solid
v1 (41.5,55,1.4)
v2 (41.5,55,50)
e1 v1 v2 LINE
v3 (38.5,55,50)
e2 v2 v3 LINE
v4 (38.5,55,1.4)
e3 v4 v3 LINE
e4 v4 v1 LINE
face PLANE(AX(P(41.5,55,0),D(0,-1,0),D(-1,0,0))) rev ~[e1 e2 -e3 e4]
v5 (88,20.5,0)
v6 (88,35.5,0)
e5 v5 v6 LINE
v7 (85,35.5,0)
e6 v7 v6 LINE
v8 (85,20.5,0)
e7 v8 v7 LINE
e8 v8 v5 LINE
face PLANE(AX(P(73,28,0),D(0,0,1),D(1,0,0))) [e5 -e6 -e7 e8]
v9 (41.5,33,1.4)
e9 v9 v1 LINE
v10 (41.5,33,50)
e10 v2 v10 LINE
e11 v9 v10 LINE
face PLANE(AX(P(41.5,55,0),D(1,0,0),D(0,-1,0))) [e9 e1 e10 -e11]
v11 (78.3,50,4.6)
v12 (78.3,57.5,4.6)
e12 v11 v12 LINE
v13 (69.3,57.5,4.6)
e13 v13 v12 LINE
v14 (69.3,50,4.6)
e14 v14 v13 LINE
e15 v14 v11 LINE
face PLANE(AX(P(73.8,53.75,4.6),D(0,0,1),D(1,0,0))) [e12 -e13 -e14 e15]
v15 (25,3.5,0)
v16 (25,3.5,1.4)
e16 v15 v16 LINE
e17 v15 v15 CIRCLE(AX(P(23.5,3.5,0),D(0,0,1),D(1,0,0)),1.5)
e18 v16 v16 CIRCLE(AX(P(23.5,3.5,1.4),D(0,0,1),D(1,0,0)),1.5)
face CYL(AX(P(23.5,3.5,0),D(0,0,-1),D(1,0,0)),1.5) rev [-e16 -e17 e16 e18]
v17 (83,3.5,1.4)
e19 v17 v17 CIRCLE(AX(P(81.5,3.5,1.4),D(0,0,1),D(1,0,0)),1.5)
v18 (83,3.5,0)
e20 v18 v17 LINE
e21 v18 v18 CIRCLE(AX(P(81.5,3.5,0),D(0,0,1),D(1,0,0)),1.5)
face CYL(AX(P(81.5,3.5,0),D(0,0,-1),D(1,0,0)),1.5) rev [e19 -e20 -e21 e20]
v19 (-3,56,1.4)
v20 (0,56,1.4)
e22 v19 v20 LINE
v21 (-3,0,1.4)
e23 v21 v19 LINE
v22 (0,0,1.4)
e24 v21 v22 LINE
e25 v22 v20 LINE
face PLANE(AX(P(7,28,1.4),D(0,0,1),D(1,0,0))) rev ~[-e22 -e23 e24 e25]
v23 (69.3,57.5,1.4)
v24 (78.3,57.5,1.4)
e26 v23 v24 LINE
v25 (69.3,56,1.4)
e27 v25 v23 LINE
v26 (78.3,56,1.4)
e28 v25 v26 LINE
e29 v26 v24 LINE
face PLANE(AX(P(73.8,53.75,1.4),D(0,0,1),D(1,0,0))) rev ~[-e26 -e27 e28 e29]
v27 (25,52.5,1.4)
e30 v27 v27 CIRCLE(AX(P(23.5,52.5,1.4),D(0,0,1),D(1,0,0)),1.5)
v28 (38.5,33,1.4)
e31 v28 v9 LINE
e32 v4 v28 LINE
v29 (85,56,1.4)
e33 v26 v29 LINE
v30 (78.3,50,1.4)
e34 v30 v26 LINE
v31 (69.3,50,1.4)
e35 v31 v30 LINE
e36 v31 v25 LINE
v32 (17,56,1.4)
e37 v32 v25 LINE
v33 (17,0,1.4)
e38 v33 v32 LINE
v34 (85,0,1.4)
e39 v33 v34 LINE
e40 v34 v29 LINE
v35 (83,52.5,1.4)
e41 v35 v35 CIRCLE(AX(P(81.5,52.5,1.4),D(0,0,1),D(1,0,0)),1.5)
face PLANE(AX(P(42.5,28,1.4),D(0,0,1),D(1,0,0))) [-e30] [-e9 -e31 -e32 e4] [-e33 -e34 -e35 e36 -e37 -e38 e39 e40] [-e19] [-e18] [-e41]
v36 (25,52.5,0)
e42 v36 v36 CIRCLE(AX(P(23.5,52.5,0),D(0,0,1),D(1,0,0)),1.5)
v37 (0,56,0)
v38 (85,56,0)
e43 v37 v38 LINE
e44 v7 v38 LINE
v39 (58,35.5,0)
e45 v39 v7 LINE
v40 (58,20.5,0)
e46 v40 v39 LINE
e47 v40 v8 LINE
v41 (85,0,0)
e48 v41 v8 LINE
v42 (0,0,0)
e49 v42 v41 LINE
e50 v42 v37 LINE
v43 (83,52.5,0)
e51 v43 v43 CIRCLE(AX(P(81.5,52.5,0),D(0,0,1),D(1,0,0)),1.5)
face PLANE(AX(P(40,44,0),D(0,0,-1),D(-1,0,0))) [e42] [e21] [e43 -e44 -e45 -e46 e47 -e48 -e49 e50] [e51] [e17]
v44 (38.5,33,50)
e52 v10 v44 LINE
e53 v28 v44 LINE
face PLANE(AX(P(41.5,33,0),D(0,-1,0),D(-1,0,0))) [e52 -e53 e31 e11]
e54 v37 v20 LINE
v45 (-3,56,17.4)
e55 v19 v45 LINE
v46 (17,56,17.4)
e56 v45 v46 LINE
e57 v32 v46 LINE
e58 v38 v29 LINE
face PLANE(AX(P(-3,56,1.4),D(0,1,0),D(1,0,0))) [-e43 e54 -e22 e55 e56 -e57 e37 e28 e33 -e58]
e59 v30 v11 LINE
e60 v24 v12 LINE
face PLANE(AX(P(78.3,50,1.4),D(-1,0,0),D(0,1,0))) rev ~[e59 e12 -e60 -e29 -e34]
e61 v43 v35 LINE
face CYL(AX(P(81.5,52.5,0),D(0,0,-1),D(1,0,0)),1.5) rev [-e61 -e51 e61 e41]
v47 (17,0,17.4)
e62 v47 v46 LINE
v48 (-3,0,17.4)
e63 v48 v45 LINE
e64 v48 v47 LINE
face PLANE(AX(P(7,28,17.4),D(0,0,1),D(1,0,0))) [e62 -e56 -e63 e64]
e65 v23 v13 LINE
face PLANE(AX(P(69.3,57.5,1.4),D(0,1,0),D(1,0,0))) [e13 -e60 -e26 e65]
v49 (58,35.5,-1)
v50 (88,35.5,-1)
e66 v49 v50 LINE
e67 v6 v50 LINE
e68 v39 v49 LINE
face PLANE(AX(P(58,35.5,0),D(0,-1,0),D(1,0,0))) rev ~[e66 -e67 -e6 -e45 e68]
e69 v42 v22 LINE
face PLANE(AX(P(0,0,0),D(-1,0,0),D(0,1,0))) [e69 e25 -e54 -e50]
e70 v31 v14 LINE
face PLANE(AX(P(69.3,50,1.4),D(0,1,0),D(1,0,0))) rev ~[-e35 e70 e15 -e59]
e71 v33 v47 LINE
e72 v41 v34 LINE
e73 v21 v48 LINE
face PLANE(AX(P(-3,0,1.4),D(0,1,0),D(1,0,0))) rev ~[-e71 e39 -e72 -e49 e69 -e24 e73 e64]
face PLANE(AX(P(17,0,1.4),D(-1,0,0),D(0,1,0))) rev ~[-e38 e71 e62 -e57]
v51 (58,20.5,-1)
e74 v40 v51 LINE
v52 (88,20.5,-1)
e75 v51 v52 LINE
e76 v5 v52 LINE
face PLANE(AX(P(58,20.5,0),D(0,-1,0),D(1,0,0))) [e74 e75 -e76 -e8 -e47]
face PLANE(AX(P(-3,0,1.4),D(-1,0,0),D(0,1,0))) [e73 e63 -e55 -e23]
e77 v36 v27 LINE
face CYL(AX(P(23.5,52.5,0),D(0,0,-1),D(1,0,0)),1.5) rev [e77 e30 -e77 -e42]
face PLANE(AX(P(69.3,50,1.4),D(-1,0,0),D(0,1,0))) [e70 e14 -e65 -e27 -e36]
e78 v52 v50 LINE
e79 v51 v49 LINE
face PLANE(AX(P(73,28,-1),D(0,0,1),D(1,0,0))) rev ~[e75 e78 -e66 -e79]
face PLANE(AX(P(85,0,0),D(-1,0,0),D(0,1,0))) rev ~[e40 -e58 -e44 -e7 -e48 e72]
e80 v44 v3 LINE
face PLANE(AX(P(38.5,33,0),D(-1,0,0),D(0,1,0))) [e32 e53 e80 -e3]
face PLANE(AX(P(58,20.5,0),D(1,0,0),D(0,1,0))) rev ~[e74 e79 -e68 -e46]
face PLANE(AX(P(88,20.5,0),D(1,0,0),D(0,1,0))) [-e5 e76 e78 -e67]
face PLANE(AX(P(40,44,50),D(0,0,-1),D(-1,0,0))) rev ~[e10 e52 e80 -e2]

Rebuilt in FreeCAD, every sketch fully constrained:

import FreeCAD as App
import Part
import Sketcher
Q = App.Units.Quantity

doc = App.newDocument("Part")
body = doc.addObject("PartDesign::Body", "Body")

sketch1 = body.newObject("Sketcher::SketchObject", "Sketch")
sketch1.AttachmentSupport = (doc.getObject("XY_Plane"), [""])
sketch1.MapMode = "FlatFace"
sketch1.addGeometry([
    Part.LineSegment(App.Vector(0, 56, 0), App.Vector(0, 0, 0)),
    Part.LineSegment(App.Vector(0, 0, 0), App.Vector(85, 0, 0)),
    Part.LineSegment(App.Vector(85, 0, 0), App.Vector(85, 56, 0)),
    Part.LineSegment(App.Vector(85, 56, 0), App.Vector(0, 56, 0)),
    Part.Circle(App.Vector(23.5, 3.5, 0), App.Vector(0, 0, 1), 1.5),
    Part.Circle(App.Vector(81.5, 3.5, 0), App.Vector(0, 0, 1), 1.5),
    Part.Circle(App.Vector(23.5, 52.5, 0), App.Vector(0, 0, 1), 1.5),
    Part.Circle(App.Vector(81.5, 52.5, 0), App.Vector(0, 0, 1), 1.5),
], False)
sketch1.addConstraint([
    Sketcher.Constraint("Coincident", 0, 2, 1, 1),
    Sketcher.Constraint("Coincident", 1, 2, 2, 1),
    Sketcher.Constraint("Coincident", 2, 2, 3, 1),
    Sketcher.Constraint("Coincident", 3, 2, 0, 1),
    Sketcher.Constraint("Vertical", 0),
    Sketcher.Constraint("Horizontal", 1),
    Sketcher.Constraint("Vertical", 2),
    Sketcher.Constraint("Horizontal", 3),
    Sketcher.Constraint("Coincident", 0, 2, -1, 1),
    Sketcher.Constraint("Equal", 4, 5),
    Sketcher.Constraint("Equal", 5, 6),
    Sketcher.Constraint("Equal", 6, 7),
    Sketcher.Constraint("Horizontal", 4, 3, 5, 3),
    Sketcher.Constraint("Horizontal", 6, 3, 7, 3),
    Sketcher.Constraint("Vertical", 4, 3, 6, 3),
    Sketcher.Constraint("Vertical", 5, 3, 7, 3),
    Sketcher.Constraint("Diameter", 4, Q("3 mm")),
    Sketcher.Constraint("DistanceX", 1, 1, 1, 2, Q("85 mm")),
    Sketcher.Constraint("DistanceY", 0, 2, 0, 1, Q("56 mm")),
    Sketcher.Constraint("DistanceX", 4, 3, 5, 3, Q("58 mm")),
    Sketcher.Constraint("DistanceY", 4, 3, 6, 3, Q("49 mm")),
    Sketcher.Constraint("DistanceX", -1, 1, 4, 3, Q("23.5 mm")),
    Sketcher.Constraint("DistanceY", -1, 1, 4, 3, Q("3.5 mm")),
])
pad1 = body.newObject("PartDesign::Pad", "Pad")
pad1.Profile = sketch1
pad1.Length = 1.4

sketch2 = body.newObject("Sketcher::SketchObject", "Sketch001")
sketch2.AttachmentSupport = (doc.getObject("XY_Plane"), [""])
sketch2.MapMode = "FlatFace"
sketch2.AttachmentOffset = App.Placement(App.Vector(0, 0, 1.4), App.Rotation())
sketch2.addGeometry([
    Part.LineSegment(App.Vector(-3, 56, 0), App.Vector(-3, 0, 0)),
    Part.LineSegment(App.Vector(-3, 0, 0), App.Vector(17, 0, 0)),
    Part.LineSegment(App.Vector(17, 0, 0), App.Vector(17, 56, 0)),
    Part.LineSegment(App.Vector(17, 56, 0), App.Vector(-3, 56, 0)),
], False)
sketch2.addConstraint([
    Sketcher.Constraint("Coincident", 0, 2, 1, 1),
    Sketcher.Constraint("Coincident", 1, 2, 2, 1),
    Sketcher.Constraint("Coincident", 2, 2, 3, 1),
    Sketcher.Constraint("Coincident", 3, 2, 0, 1),
    Sketcher.Constraint("Vertical", 0),
    Sketcher.Constraint("Horizontal", 1),
    Sketcher.Constraint("Vertical", 2),
    Sketcher.Constraint("Horizontal", 3),
    Sketcher.Constraint("PointOnObject", 0, 2, -1),
    Sketcher.Constraint("DistanceX", 1, 1, 1, 2, Q("20 mm")),
    Sketcher.Constraint("DistanceY", 0, 2, 0, 1, Q("56 mm")),
    Sketcher.Constraint("DistanceX", 0, 2, -1, 1, Q("3 mm")),
])
pad2 = body.newObject("PartDesign::Pad", "Pad001")
pad2.Profile = sketch2
pad2.Length = 16

sketch3 = body.newObject("Sketcher::SketchObject", "Sketch002")
sketch3.AttachmentSupport = (doc.getObject("XY_Plane"), [""])
sketch3.MapMode = "FlatFace"
sketch3.addGeometry([
    Part.LineSegment(App.Vector(58, 36, 0), App.Vector(58, 20, 0)),
    Part.LineSegment(App.Vector(58, 20, 0), App.Vector(88, 20, 0)),
    Part.LineSegment(App.Vector(88, 20, 0), App.Vector(88, 36, 0)),
    Part.LineSegment(App.Vector(88, 36, 0), App.Vector(58, 36, 0)),
], False)
sketch3.addConstraint([
    Sketcher.Constraint("Coincident", 0, 2, 1, 1),
    Sketcher.Constraint("Coincident", 1, 2, 2, 1),
    Sketcher.Constraint("Coincident", 2, 2, 3, 1),
    Sketcher.Constraint("Coincident", 3, 2, 0, 1),
    Sketcher.Constraint("Vertical", 0),
    Sketcher.Constraint("Horizontal", 1),
    Sketcher.Constraint("Vertical", 2),
    Sketcher.Constraint("Horizontal", 3),
    Sketcher.Constraint("DistanceX", 1, 1, 1, 2, Q("30 mm")),
    Sketcher.Constraint("DistanceY", 0, 2, 0, 1, Q("15 mm")),
    Sketcher.Constraint("DistanceX", -1, 1, 0, 2, Q("58 mm")),
    Sketcher.Constraint("DistanceY", -1, 1, 0, 2, Q("20.5 mm")),
])
pad3 = body.newObject("PartDesign::Pad", "Pad002")
pad3.Profile = sketch3
pad3.Length = 1
pad3.Reversed = True

sketch4 = body.newObject("Sketcher::SketchObject", "Sketch003")
sketch4.AttachmentSupport = (doc.getObject("XY_Plane"), [""])
sketch4.MapMode = "FlatFace"
sketch4.AttachmentOffset = App.Placement(App.Vector(0, 0, 1.4), App.Rotation())
sketch4.addGeometry([
    Part.LineSegment(App.Vector(69, 58, 0), App.Vector(69, 50, 0)),
    Part.LineSegment(App.Vector(69, 50, 0), App.Vector(78, 50, 0)),
    Part.LineSegment(App.Vector(78, 50, 0), App.Vector(78, 58, 0)),
    Part.LineSegment(App.Vector(78, 58, 0), App.Vector(69, 58, 0)),
], False)
sketch4.addConstraint([
    Sketcher.Constraint("Coincident", 0, 2, 1, 1),
    Sketcher.Constraint("Coincident", 1, 2, 2, 1),
    Sketcher.Constraint("Coincident", 2, 2, 3, 1),
    Sketcher.Constraint("Coincident", 3, 2, 0, 1),
    Sketcher.Constraint("Vertical", 0),
    Sketcher.Constraint("Horizontal", 1),
    Sketcher.Constraint("Vertical", 2),
    Sketcher.Constraint("Horizontal", 3),
    Sketcher.Constraint("DistanceX", 1, 1, 1, 2, Q("9 mm")),
    Sketcher.Constraint("DistanceY", 0, 2, 0, 1, Q("7.5 mm")),
    Sketcher.Constraint("DistanceY", -1, 1, 0, 2, Q("50 mm")),
    Sketcher.Constraint("DistanceX", -1, 1, 0, 2, Q("69.3 mm")),
])
pad4 = body.newObject("PartDesign::Pad", "Pad003")
pad4.Profile = sketch4
pad4.Length = 3.2

sketch5 = body.newObject("Sketcher::SketchObject", "Sketch004")
sketch5.AttachmentSupport = (doc.getObject("XY_Plane"), [""])
sketch5.MapMode = "FlatFace"
sketch5.addGeometry([
    Part.LineSegment(App.Vector(41.5, 33, 0), App.Vector(41.5, 55, 0)),
    Part.LineSegment(App.Vector(41.5, 55, 0), App.Vector(38.5, 55, 0)),
    Part.LineSegment(App.Vector(38.5, 55, 0), App.Vector(38.5, 33, 0)),
    Part.LineSegment(App.Vector(38.5, 33, 0), App.Vector(41.5, 33, 0)),
], False)
sketch5.addConstraint([
    Sketcher.Constraint("Coincident", 0, 2, 1, 1),
    Sketcher.Constraint("Coincident", 1, 2, 2, 1),
    Sketcher.Constraint("Coincident", 2, 2, 3, 1),
    Sketcher.Constraint("Coincident", 3, 2, 0, 1),
    Sketcher.Constraint("Vertical", 0),
    Sketcher.Constraint("Horizontal", 1),
    Sketcher.Constraint("Vertical", 2),
    Sketcher.Constraint("Horizontal", 3),
    Sketcher.Constraint("DistanceX", 1, 2, 1, 1, Q("3 mm")),
    Sketcher.Constraint("DistanceY", 0, 1, 0, 2, Q("22 mm")),
    Sketcher.Constraint("DistanceY", -1, 1, 0, 2, Q("55 mm")),
    Sketcher.Constraint("DistanceX", -1, 1, 0, 2, Q("41.5 mm")),
])
pad5 = body.newObject("PartDesign::Pad", "Pad004")
pad5.Profile = sketch5
pad5.Length = 50

doc.recompute()
